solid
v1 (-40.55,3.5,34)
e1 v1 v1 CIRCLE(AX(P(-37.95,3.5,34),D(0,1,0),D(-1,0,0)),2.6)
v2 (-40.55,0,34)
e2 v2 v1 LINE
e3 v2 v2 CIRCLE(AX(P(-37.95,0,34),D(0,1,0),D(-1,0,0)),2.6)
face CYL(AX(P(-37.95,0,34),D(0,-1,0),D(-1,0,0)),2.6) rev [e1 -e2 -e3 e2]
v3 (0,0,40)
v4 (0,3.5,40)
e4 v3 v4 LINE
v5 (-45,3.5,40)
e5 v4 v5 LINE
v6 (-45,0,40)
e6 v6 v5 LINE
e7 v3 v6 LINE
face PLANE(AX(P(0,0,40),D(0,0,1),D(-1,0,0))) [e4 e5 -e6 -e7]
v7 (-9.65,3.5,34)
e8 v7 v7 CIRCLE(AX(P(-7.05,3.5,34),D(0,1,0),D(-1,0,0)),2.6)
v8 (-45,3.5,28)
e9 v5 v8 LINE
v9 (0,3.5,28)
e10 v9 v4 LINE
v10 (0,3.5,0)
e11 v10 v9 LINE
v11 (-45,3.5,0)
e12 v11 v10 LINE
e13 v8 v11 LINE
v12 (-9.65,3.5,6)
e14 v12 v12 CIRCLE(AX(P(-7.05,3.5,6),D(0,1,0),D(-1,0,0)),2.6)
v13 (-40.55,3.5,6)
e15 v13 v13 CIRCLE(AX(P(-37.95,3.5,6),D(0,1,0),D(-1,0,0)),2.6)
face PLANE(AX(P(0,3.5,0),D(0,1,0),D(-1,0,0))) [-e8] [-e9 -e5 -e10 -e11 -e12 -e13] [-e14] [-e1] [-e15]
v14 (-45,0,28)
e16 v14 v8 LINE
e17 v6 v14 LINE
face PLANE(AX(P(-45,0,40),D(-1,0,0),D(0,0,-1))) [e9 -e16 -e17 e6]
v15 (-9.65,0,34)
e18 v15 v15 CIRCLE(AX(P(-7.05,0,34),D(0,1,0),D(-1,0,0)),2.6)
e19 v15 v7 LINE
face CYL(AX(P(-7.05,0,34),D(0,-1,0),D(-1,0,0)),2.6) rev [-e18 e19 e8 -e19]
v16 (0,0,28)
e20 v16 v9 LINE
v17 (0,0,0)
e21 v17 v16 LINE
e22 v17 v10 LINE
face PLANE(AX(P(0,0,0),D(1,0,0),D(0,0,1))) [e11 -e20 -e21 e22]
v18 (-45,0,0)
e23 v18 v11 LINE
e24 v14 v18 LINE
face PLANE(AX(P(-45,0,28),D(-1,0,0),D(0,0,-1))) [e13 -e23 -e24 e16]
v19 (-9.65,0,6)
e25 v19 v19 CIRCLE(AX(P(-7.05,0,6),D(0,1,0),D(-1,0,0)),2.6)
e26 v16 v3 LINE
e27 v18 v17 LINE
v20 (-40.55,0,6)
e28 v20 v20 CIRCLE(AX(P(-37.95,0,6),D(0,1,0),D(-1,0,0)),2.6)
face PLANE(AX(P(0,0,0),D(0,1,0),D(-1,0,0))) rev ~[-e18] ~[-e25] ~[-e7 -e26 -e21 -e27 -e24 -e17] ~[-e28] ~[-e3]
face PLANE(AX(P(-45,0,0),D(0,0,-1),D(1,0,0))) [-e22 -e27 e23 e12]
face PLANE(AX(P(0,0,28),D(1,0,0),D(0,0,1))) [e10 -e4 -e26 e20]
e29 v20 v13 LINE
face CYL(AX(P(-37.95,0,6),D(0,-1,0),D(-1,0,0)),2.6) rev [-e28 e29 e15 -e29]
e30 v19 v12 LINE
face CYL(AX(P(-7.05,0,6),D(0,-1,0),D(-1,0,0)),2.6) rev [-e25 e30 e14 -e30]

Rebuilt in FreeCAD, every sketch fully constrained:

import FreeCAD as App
import Part
import Sketcher

doc = App.newDocument("Part")
params = doc.addObject("Spreadsheet::Sheet", "Params")
for row, (alias, value) in enumerate([
    ("sketch1_width", "45 mm"),
    ("sketch1_height", "40 mm"),
    ("sketch1_diameter", "5.2 mm"),
    ("pad1_length", "3.5 mm"),
], start=1):
    params.set(f"A{row}", alias)
    params.set(f"B{row}", "=" + value)
    params.setAlias(f"B{row}", alias)

body = doc.addObject("PartDesign::Body", "Body")

# Sketch on XZ plane
sketch1 = body.newObject("Sketcher::SketchObject", "Sketch")
sketch1.AttachmentSupport = (doc.getObject("XZ_Plane"), [""])
sketch1.MapMode = "FlatFace"
sketch1.addGeometry([
    Part.LineSegment(App.Vector(0, 40, 0), App.Vector(0, 0, 0)),  # 0
    Part.LineSegment(App.Vector(0, 0, 0), App.Vector(-45, 0, 0)),  # 1
    Part.LineSegment(App.Vector(-45, 0, 0), App.Vector(-45, 40, 0)),  # 2
    Part.LineSegment(App.Vector(-45, 40, 0), App.Vector(0, 40, 0)),  # 3
    Part.Circle(App.Vector(-7.05, 6, 0), App.Vector(0, 0, 1), 2.6),  # 4
    Part.Circle(App.Vector(-37.95, 6, 0), App.Vector(0, 0, 1), 2.6),  # 5
    Part.Circle(App.Vector(-7.05, 34, 0), App.Vector(0, 0, 1), 2.6),  # 6
    Part.Circle(App.Vector(-37.95, 34, 0), App.Vector(0, 0, 1), 2.6),  # 7
], False)
sketch1.addConstraint([
    Sketcher.Constraint("Coincident", 0, 2, 1, 1),
    Sketcher.Constraint("Coincident", 1, 2, 2, 1),
    Sketcher.Constraint("Coincident", 2, 2, 3, 1),
    Sketcher.Constraint("Coincident", 3, 2, 0, 1),
    Sketcher.Constraint("Vertical", 0),
    Sketcher.Constraint("Horizontal", 1),
    Sketcher.Constraint("Vertical", 2),
    Sketcher.Constraint("Horizontal", 3),
    Sketcher.Constraint("Coincident", 0, 2, -1, 1),
    Sketcher.Constraint("Equal", 4, 5),
    Sketcher.Constraint("Equal", 5, 6),
    Sketcher.Constraint("Equal", 6, 7),
    Sketcher.Constraint("Horizontal", 4, 3, 5, 3),
    Sketcher.Constraint("Horizontal", 6, 3, 7, 3),
    Sketcher.Constraint("Vertical", 4, 3, 6, 3),
    Sketcher.Constraint("Vertical", 5, 3, 7, 3),
    Sketcher.Constraint("DistanceX", 1, 2, 1, 1, 45.0),
    Sketcher.Constraint("DistanceY", 0, 2, 0, 1, 40.0),
    Sketcher.Constraint("Diameter", 4, 5.2),
    Sketcher.Constraint("DistanceX", 5, 3, 4, 3, 30.9),
    Sketcher.Constraint("DistanceY", -1, 1, 4, 3, 6.0),
    Sketcher.Constraint("DistanceY", -1, 1, 6, 3, 34.0),
    Sketcher.Constraint("DistanceX", 4, 3, -1, 1, 7.05),
])
sketch1.setExpression("Constraints[16]", "Params.sketch1_width")
sketch1.setExpression("Constraints[17]", "Params.sketch1_height")
sketch1.setExpression("Constraints[18]", "Params.sketch1_diameter")
pad1 = body.newObject("PartDesign::Pad", "Pad")
pad1.Profile = sketch1
pad1.setExpression("Length", "Params.pad1_length")
pad1.Reversed = True

doc.recompute()
